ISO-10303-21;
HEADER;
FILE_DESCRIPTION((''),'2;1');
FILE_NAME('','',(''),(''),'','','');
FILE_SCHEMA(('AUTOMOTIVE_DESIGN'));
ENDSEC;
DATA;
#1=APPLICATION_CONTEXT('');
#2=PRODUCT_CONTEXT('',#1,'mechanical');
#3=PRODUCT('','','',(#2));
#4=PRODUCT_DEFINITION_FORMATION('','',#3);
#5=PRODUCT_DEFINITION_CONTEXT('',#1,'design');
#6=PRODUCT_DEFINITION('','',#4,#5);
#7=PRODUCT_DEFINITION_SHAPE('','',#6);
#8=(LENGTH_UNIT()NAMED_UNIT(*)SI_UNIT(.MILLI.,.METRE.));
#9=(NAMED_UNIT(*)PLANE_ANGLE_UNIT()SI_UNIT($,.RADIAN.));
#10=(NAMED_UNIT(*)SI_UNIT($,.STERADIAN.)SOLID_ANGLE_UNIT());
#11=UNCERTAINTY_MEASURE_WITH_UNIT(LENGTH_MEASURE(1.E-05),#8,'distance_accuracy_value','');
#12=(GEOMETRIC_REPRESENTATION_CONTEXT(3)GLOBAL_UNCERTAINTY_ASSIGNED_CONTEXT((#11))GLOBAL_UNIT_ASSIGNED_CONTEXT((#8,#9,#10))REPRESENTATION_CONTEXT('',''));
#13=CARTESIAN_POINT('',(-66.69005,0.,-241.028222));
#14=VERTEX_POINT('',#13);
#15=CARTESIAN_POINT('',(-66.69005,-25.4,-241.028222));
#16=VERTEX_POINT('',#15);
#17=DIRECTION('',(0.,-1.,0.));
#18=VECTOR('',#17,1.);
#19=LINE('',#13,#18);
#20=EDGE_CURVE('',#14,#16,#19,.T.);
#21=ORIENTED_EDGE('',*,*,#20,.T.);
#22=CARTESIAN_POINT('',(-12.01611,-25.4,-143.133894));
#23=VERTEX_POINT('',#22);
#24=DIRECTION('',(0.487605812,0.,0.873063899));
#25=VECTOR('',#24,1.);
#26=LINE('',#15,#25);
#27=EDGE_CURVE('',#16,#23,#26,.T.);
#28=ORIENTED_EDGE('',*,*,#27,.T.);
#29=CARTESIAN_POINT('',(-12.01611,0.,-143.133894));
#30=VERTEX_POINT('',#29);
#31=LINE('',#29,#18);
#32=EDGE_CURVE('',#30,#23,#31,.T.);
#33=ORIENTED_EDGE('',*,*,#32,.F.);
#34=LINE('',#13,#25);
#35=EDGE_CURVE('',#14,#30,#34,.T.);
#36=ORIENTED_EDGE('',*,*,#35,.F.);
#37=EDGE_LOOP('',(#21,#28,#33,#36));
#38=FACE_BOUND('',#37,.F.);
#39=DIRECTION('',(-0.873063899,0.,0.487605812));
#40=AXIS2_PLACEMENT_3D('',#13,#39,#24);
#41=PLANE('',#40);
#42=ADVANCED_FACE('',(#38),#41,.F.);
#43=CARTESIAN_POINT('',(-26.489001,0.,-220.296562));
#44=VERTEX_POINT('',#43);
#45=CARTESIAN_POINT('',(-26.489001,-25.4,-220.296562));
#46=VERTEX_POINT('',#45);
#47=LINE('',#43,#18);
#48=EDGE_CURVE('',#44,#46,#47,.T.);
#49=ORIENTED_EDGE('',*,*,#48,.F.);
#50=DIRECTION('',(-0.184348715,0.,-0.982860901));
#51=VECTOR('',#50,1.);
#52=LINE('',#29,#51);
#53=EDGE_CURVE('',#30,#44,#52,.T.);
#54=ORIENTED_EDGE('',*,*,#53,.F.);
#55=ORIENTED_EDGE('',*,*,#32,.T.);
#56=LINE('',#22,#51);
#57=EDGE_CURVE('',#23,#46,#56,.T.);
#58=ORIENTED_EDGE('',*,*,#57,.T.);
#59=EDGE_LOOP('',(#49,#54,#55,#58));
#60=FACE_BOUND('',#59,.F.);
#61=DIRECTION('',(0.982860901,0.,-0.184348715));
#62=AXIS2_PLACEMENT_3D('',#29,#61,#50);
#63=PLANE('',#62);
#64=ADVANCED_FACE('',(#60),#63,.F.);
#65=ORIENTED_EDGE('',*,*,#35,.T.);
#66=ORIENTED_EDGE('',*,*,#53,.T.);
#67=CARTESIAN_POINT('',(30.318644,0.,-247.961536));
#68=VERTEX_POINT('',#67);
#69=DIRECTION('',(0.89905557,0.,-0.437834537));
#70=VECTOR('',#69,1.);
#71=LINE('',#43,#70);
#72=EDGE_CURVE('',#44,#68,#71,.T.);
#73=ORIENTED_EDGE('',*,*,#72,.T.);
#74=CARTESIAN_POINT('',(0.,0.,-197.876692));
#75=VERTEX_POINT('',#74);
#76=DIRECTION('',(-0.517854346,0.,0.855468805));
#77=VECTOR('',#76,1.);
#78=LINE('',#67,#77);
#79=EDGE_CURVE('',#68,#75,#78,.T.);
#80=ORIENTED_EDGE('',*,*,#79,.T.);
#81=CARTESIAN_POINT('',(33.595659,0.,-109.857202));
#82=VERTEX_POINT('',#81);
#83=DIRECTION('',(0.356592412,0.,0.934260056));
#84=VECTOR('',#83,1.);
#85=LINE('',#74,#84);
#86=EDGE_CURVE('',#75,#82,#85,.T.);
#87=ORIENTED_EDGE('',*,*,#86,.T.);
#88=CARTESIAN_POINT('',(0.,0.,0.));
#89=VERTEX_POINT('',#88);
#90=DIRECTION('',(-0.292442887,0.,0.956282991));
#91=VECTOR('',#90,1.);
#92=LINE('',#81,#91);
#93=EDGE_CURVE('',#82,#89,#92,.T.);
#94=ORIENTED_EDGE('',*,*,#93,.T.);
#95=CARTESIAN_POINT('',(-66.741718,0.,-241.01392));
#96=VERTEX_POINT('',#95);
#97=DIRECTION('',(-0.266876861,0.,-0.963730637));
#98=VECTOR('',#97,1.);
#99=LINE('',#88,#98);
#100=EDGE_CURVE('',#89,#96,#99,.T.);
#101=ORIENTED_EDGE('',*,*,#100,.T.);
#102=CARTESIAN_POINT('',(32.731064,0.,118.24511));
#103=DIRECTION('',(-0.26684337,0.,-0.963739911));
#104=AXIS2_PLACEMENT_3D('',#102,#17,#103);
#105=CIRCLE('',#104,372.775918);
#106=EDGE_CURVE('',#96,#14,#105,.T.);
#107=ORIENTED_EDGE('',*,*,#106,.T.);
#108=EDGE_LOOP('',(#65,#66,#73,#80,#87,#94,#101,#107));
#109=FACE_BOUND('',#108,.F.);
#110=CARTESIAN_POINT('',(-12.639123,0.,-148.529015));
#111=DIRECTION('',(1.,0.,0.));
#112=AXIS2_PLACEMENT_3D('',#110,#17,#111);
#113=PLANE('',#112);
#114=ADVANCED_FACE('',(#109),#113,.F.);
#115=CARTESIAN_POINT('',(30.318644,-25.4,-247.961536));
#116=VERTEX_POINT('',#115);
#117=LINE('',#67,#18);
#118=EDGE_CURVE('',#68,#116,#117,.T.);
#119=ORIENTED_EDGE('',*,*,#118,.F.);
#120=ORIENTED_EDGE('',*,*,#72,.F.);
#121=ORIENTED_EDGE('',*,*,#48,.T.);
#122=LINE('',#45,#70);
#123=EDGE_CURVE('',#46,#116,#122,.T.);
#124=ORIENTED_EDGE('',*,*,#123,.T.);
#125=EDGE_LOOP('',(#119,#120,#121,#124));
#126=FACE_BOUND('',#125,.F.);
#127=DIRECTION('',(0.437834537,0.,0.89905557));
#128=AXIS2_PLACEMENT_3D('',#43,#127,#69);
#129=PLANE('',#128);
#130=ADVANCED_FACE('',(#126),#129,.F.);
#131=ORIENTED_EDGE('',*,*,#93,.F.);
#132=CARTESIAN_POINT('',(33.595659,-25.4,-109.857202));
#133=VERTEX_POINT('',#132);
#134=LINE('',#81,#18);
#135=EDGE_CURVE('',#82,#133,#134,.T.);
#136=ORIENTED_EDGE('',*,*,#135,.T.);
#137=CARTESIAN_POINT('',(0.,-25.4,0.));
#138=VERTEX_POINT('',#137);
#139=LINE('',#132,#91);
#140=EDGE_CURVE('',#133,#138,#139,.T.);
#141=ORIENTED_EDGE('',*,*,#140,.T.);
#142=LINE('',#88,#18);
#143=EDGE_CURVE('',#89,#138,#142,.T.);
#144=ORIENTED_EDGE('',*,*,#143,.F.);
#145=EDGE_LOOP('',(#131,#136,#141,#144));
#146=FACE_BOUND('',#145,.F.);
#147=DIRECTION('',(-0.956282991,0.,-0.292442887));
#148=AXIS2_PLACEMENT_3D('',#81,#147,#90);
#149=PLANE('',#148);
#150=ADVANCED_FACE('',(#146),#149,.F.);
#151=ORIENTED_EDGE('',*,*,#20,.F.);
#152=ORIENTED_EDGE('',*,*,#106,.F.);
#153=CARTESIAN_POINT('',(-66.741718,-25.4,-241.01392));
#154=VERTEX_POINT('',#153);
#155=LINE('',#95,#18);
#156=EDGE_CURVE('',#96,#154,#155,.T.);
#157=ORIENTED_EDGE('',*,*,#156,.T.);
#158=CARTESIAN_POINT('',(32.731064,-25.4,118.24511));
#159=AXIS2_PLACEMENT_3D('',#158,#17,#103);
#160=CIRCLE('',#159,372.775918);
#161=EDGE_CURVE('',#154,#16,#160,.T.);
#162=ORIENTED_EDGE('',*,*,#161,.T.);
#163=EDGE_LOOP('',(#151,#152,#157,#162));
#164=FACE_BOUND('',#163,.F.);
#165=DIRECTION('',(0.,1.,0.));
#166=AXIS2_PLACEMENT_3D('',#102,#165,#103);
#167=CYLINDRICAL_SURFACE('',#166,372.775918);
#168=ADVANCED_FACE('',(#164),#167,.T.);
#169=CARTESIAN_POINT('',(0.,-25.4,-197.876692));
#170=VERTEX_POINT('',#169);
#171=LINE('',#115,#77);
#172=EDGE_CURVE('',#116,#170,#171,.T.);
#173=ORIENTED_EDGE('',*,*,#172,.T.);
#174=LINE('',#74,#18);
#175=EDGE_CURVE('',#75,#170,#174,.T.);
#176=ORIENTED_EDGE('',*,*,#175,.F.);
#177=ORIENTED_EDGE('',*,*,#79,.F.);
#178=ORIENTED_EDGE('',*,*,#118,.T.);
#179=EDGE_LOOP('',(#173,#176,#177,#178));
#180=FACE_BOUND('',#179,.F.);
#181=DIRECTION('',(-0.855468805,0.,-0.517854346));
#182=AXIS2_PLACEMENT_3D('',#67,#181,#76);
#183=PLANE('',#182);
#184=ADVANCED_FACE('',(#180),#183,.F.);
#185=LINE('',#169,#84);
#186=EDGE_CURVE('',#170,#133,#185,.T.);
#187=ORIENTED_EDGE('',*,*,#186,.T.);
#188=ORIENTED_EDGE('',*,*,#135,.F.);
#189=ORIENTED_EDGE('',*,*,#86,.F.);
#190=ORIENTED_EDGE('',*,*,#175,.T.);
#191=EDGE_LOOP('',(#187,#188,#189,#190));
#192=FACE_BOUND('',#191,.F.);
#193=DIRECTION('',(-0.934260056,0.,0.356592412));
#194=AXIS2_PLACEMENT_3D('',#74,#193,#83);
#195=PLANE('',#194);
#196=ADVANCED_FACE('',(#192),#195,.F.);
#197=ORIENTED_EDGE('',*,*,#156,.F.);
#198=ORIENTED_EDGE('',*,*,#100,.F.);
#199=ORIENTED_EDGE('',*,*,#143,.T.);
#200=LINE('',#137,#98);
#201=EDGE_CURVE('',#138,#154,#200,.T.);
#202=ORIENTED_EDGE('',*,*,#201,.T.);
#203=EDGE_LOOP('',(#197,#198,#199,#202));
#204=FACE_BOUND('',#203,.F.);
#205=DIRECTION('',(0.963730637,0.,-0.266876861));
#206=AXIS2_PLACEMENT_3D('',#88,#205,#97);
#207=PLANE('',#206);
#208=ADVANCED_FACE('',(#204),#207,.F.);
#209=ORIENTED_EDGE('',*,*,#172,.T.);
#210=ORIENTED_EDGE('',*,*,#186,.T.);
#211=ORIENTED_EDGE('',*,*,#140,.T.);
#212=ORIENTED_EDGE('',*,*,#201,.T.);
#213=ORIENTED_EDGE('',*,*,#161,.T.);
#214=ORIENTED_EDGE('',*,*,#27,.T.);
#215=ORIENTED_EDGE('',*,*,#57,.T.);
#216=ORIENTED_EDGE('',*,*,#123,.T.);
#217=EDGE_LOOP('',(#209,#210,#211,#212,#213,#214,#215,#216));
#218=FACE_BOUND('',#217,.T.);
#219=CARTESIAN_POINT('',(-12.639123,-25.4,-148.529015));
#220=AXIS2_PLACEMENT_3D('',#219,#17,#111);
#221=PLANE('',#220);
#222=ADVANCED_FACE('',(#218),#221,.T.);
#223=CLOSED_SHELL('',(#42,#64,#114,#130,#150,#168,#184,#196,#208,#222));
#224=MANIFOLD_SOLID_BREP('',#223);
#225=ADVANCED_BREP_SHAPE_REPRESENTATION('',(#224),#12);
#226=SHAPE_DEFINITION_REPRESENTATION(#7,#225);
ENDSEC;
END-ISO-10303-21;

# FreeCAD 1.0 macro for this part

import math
import FreeCAD as App
import Part
import Sketcher
from FreeCAD import Vector
Q = App.Units.Quantity

doc = App.newDocument("Part")
body = doc.addObject("PartDesign::Body", "Body")

# Sketch on XZ plane
sketch1 = body.newObject("Sketcher::SketchObject", "Sketch")
sketch1.AttachmentSupport = (doc.getObject("XZ_Plane"), [""])
sketch1.MapMode = "FlatFace"
sketch1.addGeometry(Part.LineSegment(Vector(33.6, -109.86, 0), Vector(0, 0, 0)), False)
sketch1.addGeometry(Part.LineSegment(Vector(0, 0, 0), Vector(-66.74, -241.01, 0)), False)
sketch1.addGeometry(Part.ArcOfCircle(Part.Circle(Vector(32.73, 118.25, 0), Vector(0, 0, 1), 372.78), math.radians(-105.48), math.radians(-105.47)), False)
sketch1.addGeometry(Part.LineSegment(Vector(-66.69, -241.03, 0), Vector(-12.02, -143.13, 0)), False)
sketch1.addGeometry(Part.LineSegment(Vector(-12.02, -143.13, 0), Vector(-26.49, -220.3, 0)), False)
sketch1.addGeometry(Part.LineSegment(Vector(-26.49, -220.3, 0), Vector(30.32, -247.96, 0)), False)
sketch1.addGeometry(Part.LineSegment(Vector(30.32, -247.96, 0), Vector(0, -197.88, 0)), False)
sketch1.addGeometry(Part.LineSegment(Vector(0, -197.88, 0), Vector(33.6, -109.86, 0)), False)
sketch1.addConstraint(Sketcher.Constraint("Coincident", 0, 2, 1, 1))
sketch1.addConstraint(Sketcher.Constraint("Coincident", 1, 2, 2, 1))
sketch1.addConstraint(Sketcher.Constraint("Coincident", 2, 2, 3, 1))
sketch1.addConstraint(Sketcher.Constraint("Coincident", 3, 2, 4, 1))
sketch1.addConstraint(Sketcher.Constraint("Coincident", 4, 2, 5, 1))
sketch1.addConstraint(Sketcher.Constraint("Coincident", 5, 2, 6, 1))
sketch1.addConstraint(Sketcher.Constraint("Coincident", 6, 2, 7, 1))
sketch1.addConstraint(Sketcher.Constraint("Coincident", 7, 2, 0, 1))
sketch1.addConstraint(Sketcher.Constraint("Coincident", 0, 2, -1, 1))
sketch1.addConstraint(Sketcher.Constraint("PointOnObject", 6, 2, -2))
sketch1.addConstraint(Sketcher.Constraint("Radius", 2, 372.775918))
sketch1.addConstraint(Sketcher.Constraint("DistanceY", 2, 2, -1, 1, Q("9.4893001 in")))
sketch1.addConstraint(Sketcher.Constraint("DistanceX", 4, 2, -1, 1, 26.489001))
sketch1.addConstraint(Sketcher.Constraint("DistanceY", 7, 2, -1, 1, 109.857202))
sketch1.addConstraint(Sketcher.Constraint("DistanceY", 2, 2, 1, 2, 0.014302))
sketch1.addConstraint(Sketcher.Constraint("Distance", 1, 250.084319))
sketch1.addConstraint(Sketcher.Constraint("Distance", 4, 78.508228))
sketch1.addConstraint(Sketcher.Constraint("Distance", 5, 63.185911))
sketch1.addConstraint(Sketcher.Constraint("Distance", 7, 94.213051))
sketch1.addConstraint(Sketcher.Constraint("DistanceY", -1, 1, 2, 3, 118.24511))
sketch1.addConstraint(Sketcher.Constraint("DistanceX", 3, 2, -1, 1, 12.01611))
sketch1.addConstraint(Sketcher.Constraint("DistanceY", 4, 2, -1, 1, 220.296562))
sketch1.addConstraint(Sketcher.Constraint("DistanceY", 6, 2, -1, 1, 197.876692))
sketch1.addConstraint(Sketcher.Constraint("DistanceX", 1, 2, 5, 2, 97.060362))
pad1 = body.newObject("PartDesign::Pad", "Pad")
pad1.Profile = sketch1
pad1.Length = Q("1 in")

doc.recompute()
